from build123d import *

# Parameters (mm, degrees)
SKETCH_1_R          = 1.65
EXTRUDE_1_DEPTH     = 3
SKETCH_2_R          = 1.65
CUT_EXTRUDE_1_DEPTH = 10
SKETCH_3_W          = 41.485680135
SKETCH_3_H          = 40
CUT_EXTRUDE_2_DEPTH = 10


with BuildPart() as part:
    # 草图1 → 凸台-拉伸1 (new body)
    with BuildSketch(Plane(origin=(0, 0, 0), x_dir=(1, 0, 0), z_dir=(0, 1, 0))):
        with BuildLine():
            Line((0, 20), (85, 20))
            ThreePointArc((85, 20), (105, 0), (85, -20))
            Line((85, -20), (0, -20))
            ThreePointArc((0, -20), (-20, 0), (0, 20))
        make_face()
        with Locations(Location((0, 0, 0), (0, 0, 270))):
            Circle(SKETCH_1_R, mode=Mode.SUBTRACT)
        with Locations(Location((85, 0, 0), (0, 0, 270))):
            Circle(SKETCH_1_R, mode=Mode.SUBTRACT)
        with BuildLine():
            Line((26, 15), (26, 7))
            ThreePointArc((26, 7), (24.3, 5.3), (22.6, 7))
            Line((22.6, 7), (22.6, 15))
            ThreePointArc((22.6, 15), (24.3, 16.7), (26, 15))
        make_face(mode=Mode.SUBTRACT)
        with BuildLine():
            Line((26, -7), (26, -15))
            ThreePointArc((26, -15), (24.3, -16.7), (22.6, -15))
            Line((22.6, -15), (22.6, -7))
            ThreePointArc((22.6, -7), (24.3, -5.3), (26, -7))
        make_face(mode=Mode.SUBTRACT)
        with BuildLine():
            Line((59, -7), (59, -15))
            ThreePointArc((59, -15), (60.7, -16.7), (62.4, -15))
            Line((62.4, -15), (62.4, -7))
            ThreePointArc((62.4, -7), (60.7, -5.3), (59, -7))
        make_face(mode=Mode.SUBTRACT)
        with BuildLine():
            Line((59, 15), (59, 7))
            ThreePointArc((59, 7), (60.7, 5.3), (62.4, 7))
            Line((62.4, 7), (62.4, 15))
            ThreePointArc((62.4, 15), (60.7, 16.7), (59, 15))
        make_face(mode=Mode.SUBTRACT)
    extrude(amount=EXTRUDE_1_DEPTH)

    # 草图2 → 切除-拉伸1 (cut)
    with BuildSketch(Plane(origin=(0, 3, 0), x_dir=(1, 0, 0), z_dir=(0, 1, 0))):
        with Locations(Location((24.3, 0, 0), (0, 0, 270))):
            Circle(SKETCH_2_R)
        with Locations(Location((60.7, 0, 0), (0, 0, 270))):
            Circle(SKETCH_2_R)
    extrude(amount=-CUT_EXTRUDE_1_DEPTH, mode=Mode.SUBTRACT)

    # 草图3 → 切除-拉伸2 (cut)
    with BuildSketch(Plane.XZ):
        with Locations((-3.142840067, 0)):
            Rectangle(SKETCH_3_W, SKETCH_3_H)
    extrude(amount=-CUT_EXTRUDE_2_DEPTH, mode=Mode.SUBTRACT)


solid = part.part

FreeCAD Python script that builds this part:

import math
import FreeCAD as App
import Part
import Sketcher
from FreeCAD import Vector


def add_polygon(sketch, points):
    """Adds a closed chain of lines whose ends are joined by coincident constraints."""
    first, n = sketch.GeometryCount, len(points)
    for a, b in zip(points, points[1:] + points[:1]):
        sketch.addGeometry(Part.LineSegment(App.Vector(*a, 0), App.Vector(*b, 0)), False)
    for i in range(n):
        sketch.addConstraint(Sketcher.Constraint("Coincident", first + i, 2, first + (i + 1) % n, 1))

doc = App.newDocument("Part")
params = doc.addObject("Spreadsheet::Sheet", "Params")
for row, (alias, value) in enumerate([
    ("sketch1_radius", "20 mm"),
    ("sketch1_diameter", "3.3 mm"),
    ("sketch1_radius2", "1.7 mm"),
    ("sketch1_width", "85 mm"),
    ("sketch1_height", "8 mm"),
    ("pad1_length", "3 mm"),
    ("sketch2_diameter", "3.3 mm"),
    ("pocket1_length", "10 mm"),
    ("sketch3_height", "40 mm"),
    ("pocket2_length", "10 mm"),
], start=1):
    params.set(f"A{row}", alias)
    params.set(f"B{row}", "=" + value)
    params.setAlias(f"B{row}", alias)

body = doc.addObject("PartDesign::Body", "Body")

sketch1 = doc.addObject("Sketcher::SketchObject", "Sketch")
body.addObject(sketch1)
sketch1.AttachmentSupport = (doc.XZ_Plane, [""])
sketch1.MapMode = "FlatFace"
sketch1.addGeometry(Part.LineSegment(Vector(85, -20, 0), Vector(0, -20, 0)), False)
sketch1.addGeometry(Part.ArcOfCircle(Part.Circle(Vector(0, 0, 0), Vector(0, 0, 1), 20), math.radians(90), math.radians(270)), False)
sketch1.addGeometry(Part.LineSegment(Vector(0, 20, 0), Vector(85, 20, 0)), False)
sketch1.addGeometry(Part.ArcOfCircle(Part.Circle(Vector(85, 0, 0), Vector(0, 0, 1), 20), math.radians(-90), math.radians(90)), False)
sketch1.addGeometry(Part.ArcOfCircle(Part.Circle(Vector(60.7, 7, 0), Vector(0, 0, 1), 1.7), math.radians(180), math.radians(360)), False)
sketch1.addGeometry(Part.LineSegment(Vector(62.4, 7, 0), Vector(62.4, 15, 0)), False)
sketch1.addGeometry(Part.ArcOfCircle(Part.Circle(Vector(60.7, 15, 0), Vector(0, 0, 1), 1.7), math.radians(0), math.radians(180)), False)
sketch1.addGeometry(Part.LineSegment(Vector(59, 15, 0), Vector(59, 7, 0)), False)
sketch1.addGeometry(Part.LineSegment(Vector(26, 7, 0), Vector(26, 15, 0)), False)
sketch1.addGeometry(Part.ArcOfCircle(Part.Circle(Vector(24.3, 15, 0), Vector(0, 0, 1), 1.7), math.radians(0), math.radians(180)), False)
sketch1.addGeometry(Part.LineSegment(Vector(22.6, 15, 0), Vector(22.6, 7, 0)), False)
sketch1.addGeometry(Part.ArcOfCircle(Part.Circle(Vector(24.3, 7, 0), Vector(0, 0, 1), 1.7), math.radians(180), math.radians(360)), False)
sketch1.addGeometry(Part.Circle(Vector(85, 0, 0), Vector(0, 0, 1), 1.6), False)
sketch1.addGeometry(Part.ArcOfCircle(Part.Circle(Vector(60.7, -15, 0), Vector(0, 0, 1), 1.7), math.radians(180), math.radians(360)), False)
sketch1.addGeometry(Part.LineSegment(Vector(62.4, -15, 0), Vector(62.4, -7, 0)), False)
sketch1.addGeometry(Part.ArcOfCircle(Part.Circle(Vector(60.7, -7, 0), Vector(0, 0, 1), 1.7), math.radians(0), math.radians(180)), False)
sketch1.addGeometry(Part.LineSegment(Vector(59, -7, 0), Vector(59, -15, 0)), False)
sketch1.addGeometry(Part.Circle(Vector(0, 0, 0), Vector(0, 0, 1), 1.6), False)
sketch1.addGeometry(Part.LineSegment(Vector(26, -15, 0), Vector(26, -7, 0)), False)
sketch1.addGeometry(Part.ArcOfCircle(Part.Circle(Vector(24.3, -7, 0), Vector(0, 0, 1), 1.7), math.radians(0), math.radians(180)), False)
sketch1.addGeometry(Part.LineSegment(Vector(22.6, -7, 0), Vector(22.6, -15, 0)), False)
sketch1.addGeometry(Part.ArcOfCircle(Part.Circle(Vector(24.3, -15, 0), Vector(0, 0, 1), 1.7), math.radians(180), math.radians(360)), False)
sketch1.addConstraint(Sketcher.Constraint("Tangent", 0, 2, 1, 2))
sketch1.addConstraint(Sketcher.Constraint("Tangent", 1, 1, 2, 1))
sketch1.addConstraint(Sketcher.Constraint("Tangent", 2, 2, 3, 2))
sketch1.addConstraint(Sketcher.Constraint("Tangent", 3, 1, 0, 1))
sketch1.addConstraint(Sketcher.Constraint("Tangent", 4, 2, 5, 1))
sketch1.addConstraint(Sketcher.Constraint("Tangent", 5, 2, 6, 1))
sketch1.addConstraint(Sketcher.Constraint("Tangent", 6, 2, 7, 1))
sketch1.addConstraint(Sketcher.Constraint("Tangent", 7, 2, 4, 1))
sketch1.addConstraint(Sketcher.Constraint("Tangent", 8, 2, 9, 1))
sketch1.addConstraint(Sketcher.Constraint("Tangent", 9, 2, 10, 1))
sketch1.addConstraint(Sketcher.Constraint("Tangent", 10, 2, 11, 1))
sketch1.addConstraint(Sketcher.Constraint("Tangent", 11, 2, 8, 1))
sketch1.addConstraint(Sketcher.Constraint("Tangent", 13, 2, 14, 1))
sketch1.addConstraint(Sketcher.Constraint("Tangent", 14, 2, 15, 1))
sketch1.addConstraint(Sketcher.Constraint("Tangent", 15, 2, 16, 1))
sketch1.addConstraint(Sketcher.Constraint("Tangent", 16, 2, 13, 1))
sketch1.addConstraint(Sketcher.Constraint("Tangent", 18, 2, 19, 1))
sketch1.addConstraint(Sketcher.Constraint("Tangent", 19, 2, 20, 1))
sketch1.addConstraint(Sketcher.Constraint("Tangent", 20, 2, 21, 1))
sketch1.addConstraint(Sketcher.Constraint("Tangent", 21, 2, 18, 1))
sketch1.addConstraint(Sketcher.Constraint("Horizontal", 0))
sketch1.addConstraint(Sketcher.Constraint("Horizontal", 2))
sketch1.addConstraint(Sketcher.Constraint("Vertical", 5))
sketch1.addConstraint(Sketcher.Constraint("Vertical", 7))
sketch1.addConstraint(Sketcher.Constraint("Vertical", 8))
sketch1.addConstraint(Sketcher.Constraint("Vertical", 10))
sketch1.addConstraint(Sketcher.Constraint("Vertical", 14))
sketch1.addConstraint(Sketcher.Constraint("Vertical", 16))
sketch1.addConstraint(Sketcher.Constraint("Vertical", 18))
sketch1.addConstraint(Sketcher.Constraint("Vertical", 20))
sketch1.addConstraint(Sketcher.Constraint("Coincident", 1, 3, -1, 1))
sketch1.addConstraint(Sketcher.Constraint("Coincident", 17, 3, -1, 1))
sketch1.addConstraint(Sketcher.Constraint("Coincident", 12, 3, 3, 3))
sketch1.addConstraint(Sketcher.Constraint("Equal", 6, 9))
sketch1.addConstraint(Sketcher.Constraint("Equal", 11, 13))
sketch1.addConstraint(Sketcher.Constraint("Equal", 12, 17))
sketch1.addConstraint(Sketcher.Constraint("Equal", 15, 19))
sketch1.addConstraint(Sketcher.Constraint("Symmetric", 6, 3, 13, 3, -1))
sketch1.addConstraint(Sketcher.Constraint("Symmetric", 11, 3, 19, 3, -1))
sketch1.addConstraint(Sketcher.Constraint("Horizontal", 6, 3, 9, 3))
sketch1.addConstraint(Sketcher.Constraint("Horizontal", 4, 3, 11, 3))
sketch1.addConstraint(Sketcher.Constraint("Horizontal", 15, 3, 19, 3))
sketch1.addConstraint(Sketcher.Constraint("Horizontal", 13, 3, 21, 3))
sketch1.addConstraint(Sketcher.Constraint("Radius", 1, 20.0))
sketch1.addConstraint(Sketcher.Constraint("Diameter", 12, 3.3))
sketch1.addConstraint(Sketcher.Constraint("Radius", 4, 1.7))
sketch1.addConstraint(Sketcher.Constraint("DistanceX", 0, 2, 0, 1, 85.0))
sketch1.addConstraint(Sketcher.Constraint("DistanceY", 5, 1, 5, 2, 8.0))
sketch1.addConstraint(Sketcher.Constraint("DistanceY", -1, 1, 4, 3, 7.0))
sketch1.addConstraint(Sketcher.Constraint("DistanceX", -1, 1, 6, 2, 59.0))
sketch1.addConstraint(Sketcher.Constraint("DistanceX", -1, 1, 8, 2, 26.0))
sketch1.setExpression("Constraints[43]", "Params.sketch1_radius")
sketch1.setExpression("Constraints[44]", "Params.sketch1_diameter")
sketch1.setExpression("Constraints[45]", "Params.sketch1_radius2")
sketch1.setExpression("Constraints[46]", "Params.sketch1_width")
sketch1.setExpression("Constraints[47]", "Params.sketch1_height")
pad1 = doc.addObject("PartDesign::Pad", "Pad")
body.addObject(pad1)
pad1.Profile = sketch1
pad1.setExpression("Length", "Params.pad1_length")
pad1.Reversed = True

sketch2 = doc.addObject("Sketcher::SketchObject", "Sketch001")
body.addObject(sketch2)
sketch2.AttachmentSupport = (doc.XZ_Plane, [""])
sketch2.MapMode = "FlatFace"
sketch2.AttachmentOffset = App.Placement(Vector(0, 0, -3), App.Rotation())
sketch2.addGeometry(Part.Circle(Vector(24.3, 0, 0), Vector(0, 0, 1), 1.6), False)
sketch2.addGeometry(Part.Circle(Vector(60.7, 0, 0), Vector(0, 0, 1), 1.6), False)
sketch2.addConstraint(Sketcher.Constraint("Equal", 0, 1))
sketch2.addConstraint(Sketcher.Constraint("PointOnObject", 0, 3, -1))
sketch2.addConstraint(Sketcher.Constraint("PointOnObject", 1, 3, -1))
sketch2.addConstraint(Sketcher.Constraint("Diameter", 0, 3.3))
sketch2.addConstraint(Sketcher.Constraint("DistanceX", -1, 1, 0, 3, 24.3))
sketch2.addConstraint(Sketcher.Constraint("DistanceX", -1, 1, 1, 3, 60.7))
sketch2.setExpression("Constraints[3]", "Params.sketch2_diameter")
pocket1 = doc.addObject("PartDesign::Pocket", "Pocket")
body.addObject(pocket1)
pocket1.Profile = sketch2
pocket1.setExpression("Length", "Params.pocket1_length")
pocket1.Reversed = True

sketch3 = doc.addObject("Sketcher::SketchObject", "Sketch002")
body.addObject(sketch3)
sketch3.AttachmentSupport = (doc.XZ_Plane, [""])
sketch3.MapMode = "FlatFace"
add_polygon(sketch3, [(-24, 20), (-24, -20), (18, -20), (18, 20)])
sketch3.addConstraint(Sketcher.Constraint("Vertical", 0))
sketch3.addConstraint(Sketcher.Constraint("Horizontal", 1))
sketch3.addConstraint(Sketcher.Constraint("Vertical", 2))
sketch3.addConstraint(Sketcher.Constraint("Horizontal", 3))
sketch3.addConstraint(Sketcher.Constraint("DistanceY", 0, 2, 0, 1, 40.0))
sketch3.addConstraint(Sketcher.Constraint("DistanceY", 0, 2, -1, 1, 20.0))
sketch3.addConstraint(Sketcher.Constraint("DistanceX", -1, 1, 1, 2, 17.6))
sketch3.addConstraint(Sketcher.Constraint("DistanceX", 1, 1, 1, 2, 41.48568))
sketch3.setExpression("Constraints[8]", "Params.sketch3_height")
pocket2 = doc.addObject("PartDesign::Pocket", "Pocket001")
body.addObject(pocket2)
pocket2.Profile = sketch3
pocket2.setExpression("Length", "Params.pocket2_length")

doc.recompute()
